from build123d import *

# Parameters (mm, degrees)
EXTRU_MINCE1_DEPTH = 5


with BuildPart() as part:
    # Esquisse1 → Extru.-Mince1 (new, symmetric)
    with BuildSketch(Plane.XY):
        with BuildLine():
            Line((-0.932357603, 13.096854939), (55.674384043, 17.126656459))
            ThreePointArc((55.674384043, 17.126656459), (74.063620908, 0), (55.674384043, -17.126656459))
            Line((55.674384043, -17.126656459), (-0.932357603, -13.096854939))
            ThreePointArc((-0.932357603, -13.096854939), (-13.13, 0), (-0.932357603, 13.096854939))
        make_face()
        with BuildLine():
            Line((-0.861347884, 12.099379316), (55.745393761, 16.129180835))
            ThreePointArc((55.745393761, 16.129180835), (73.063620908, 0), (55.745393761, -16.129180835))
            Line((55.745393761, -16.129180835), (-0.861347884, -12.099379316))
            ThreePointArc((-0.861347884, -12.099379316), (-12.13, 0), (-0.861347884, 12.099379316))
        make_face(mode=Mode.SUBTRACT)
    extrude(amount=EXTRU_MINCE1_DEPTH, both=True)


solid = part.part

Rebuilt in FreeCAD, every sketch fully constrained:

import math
import FreeCAD as App
import Part
import Sketcher

V = App.Vector
Q = App.Units.Quantity

doc = App.newDocument("Part")
params = doc.addObject("Spreadsheet::Sheet", "Params")
for row, (alias, value) in enumerate([
    ("sketch1_radius", "13.13 mm"),
    ("sketch1_radius2", "17.17 mm"),
    ("sketch1_radius3", "16.17 mm"),
    ("sketch1_length", "56.75 mm"),
    ("pad1_length", "10 mm"),
], start=1):
    params.set(f"A{row}", alias)
    params.set(f"B{row}", "=" + value)
    params.setAlias(f"B{row}", alias)

body = doc.addObject("PartDesign::Body", "Body")

# Sketch on XY plane
sketch1 = doc.addObject("Sketcher::SketchObject", "Sketch")
body.addObject(sketch1)
sketch1.AttachmentSupport = (doc.XY_Plane, [""])
sketch1.MapMode = "FlatFace"
sketch1.addGeometry([
    Part.LineSegment(V(56, 17, 0), V(-1, 13, 0)),  # 0
    Part.ArcOfCircle(Part.Circle(V(0, 0, 0), V(0, 0, 1), 13), math.radians(94), math.radians(266)),  # 1
    Part.LineSegment(V(-1, -13, 0), V(56, -17, 0)),  # 2
    Part.ArcOfCircle(Part.Circle(V(57, 0, 0), V(0, 0, 1), 17), math.radians(-94), math.radians(94)),  # 3
    Part.LineSegment(V(-1, 12, 0), V(56, 16, 0)),  # 4
    Part.ArcOfCircle(Part.Circle(V(57, 0, 0), V(0, 0, 1), 16), math.radians(-94), math.radians(94)),  # 5
    Part.LineSegment(V(56, -16, 0), V(-1, -12, 0)),  # 6
    Part.ArcOfCircle(Part.Circle(V(0, 0, 0), V(0, 0, 1), 12), math.radians(94), math.radians(266)),  # 7
], False)
sketch1.addConstraint([
    Sketcher.Constraint("Tangent", 0, 2, 1, 1),
    Sketcher.Constraint("Tangent", 1, 2, 2, 1),
    Sketcher.Constraint("Tangent", 2, 2, 3, 1),
    Sketcher.Constraint("Tangent", 3, 2, 0, 1),
    Sketcher.Constraint("Tangent", 4, 2, 5, 2),
    Sketcher.Constraint("Tangent", 5, 1, 6, 1),
    Sketcher.Constraint("Tangent", 6, 2, 7, 2),
    Sketcher.Constraint("Tangent", 7, 1, 4, 1),
    Sketcher.Constraint("Coincident", 1, 3, -1, 1),
    Sketcher.Constraint("Coincident", 7, 3, -1, 1),
    Sketcher.Constraint("Coincident", 5, 3, 3, 3),
    Sketcher.Constraint("PointOnObject", 3, 3, -1),
    Sketcher.Constraint("Parallel", 0, 4),
    Sketcher.Constraint("Radius", 1, Q("13.13 mm")),
    Sketcher.Constraint("Radius", 3, Q("17.17 mm")),
    Sketcher.Constraint("Radius", 5, Q("16.17 mm")),
    Sketcher.Constraint("Distance", 0, Q("56.75 mm")),
])
sketch1.setExpression("Constraints[13]", "Params.sketch1_radius")
sketch1.setExpression("Constraints[14]", "Params.sketch1_radius2")
sketch1.setExpression("Constraints[15]", "Params.sketch1_radius3")
sketch1.setExpression("Constraints[16]", "Params.sketch1_length")
pad1 = doc.addObject("PartDesign::Pad", "Pad")
body.addObject(pad1)
pad1.Profile = sketch1
pad1.setExpression("Length", "Params.pad1_length")
pad1.Midplane = True

doc.recompute()
